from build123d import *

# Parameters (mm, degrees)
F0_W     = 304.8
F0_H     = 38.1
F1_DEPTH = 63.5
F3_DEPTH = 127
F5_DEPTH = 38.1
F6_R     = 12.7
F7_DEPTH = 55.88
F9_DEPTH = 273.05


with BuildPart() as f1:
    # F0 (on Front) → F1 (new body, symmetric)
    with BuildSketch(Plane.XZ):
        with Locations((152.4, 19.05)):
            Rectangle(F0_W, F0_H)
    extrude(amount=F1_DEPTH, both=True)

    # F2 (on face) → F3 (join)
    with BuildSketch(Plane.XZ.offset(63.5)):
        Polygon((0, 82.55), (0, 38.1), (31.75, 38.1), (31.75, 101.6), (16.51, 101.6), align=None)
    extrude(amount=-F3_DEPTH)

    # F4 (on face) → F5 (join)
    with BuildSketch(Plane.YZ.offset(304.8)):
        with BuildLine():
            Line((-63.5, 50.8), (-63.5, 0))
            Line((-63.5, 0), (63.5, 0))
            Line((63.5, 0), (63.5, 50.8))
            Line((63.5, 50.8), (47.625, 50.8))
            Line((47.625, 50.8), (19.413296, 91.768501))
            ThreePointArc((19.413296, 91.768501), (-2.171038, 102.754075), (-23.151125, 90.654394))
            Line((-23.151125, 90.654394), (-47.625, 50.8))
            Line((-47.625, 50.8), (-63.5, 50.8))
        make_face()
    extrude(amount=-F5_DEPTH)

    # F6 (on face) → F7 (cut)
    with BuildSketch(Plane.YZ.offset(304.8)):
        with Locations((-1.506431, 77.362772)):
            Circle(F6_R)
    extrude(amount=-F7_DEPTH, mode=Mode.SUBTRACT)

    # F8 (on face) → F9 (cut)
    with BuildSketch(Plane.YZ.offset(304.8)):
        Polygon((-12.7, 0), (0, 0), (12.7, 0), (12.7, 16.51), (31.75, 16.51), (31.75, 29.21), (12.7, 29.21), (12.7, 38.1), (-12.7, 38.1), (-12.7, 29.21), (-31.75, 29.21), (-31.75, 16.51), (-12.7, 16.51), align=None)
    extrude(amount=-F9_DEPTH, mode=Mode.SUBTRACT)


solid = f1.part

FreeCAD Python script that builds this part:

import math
import FreeCAD as App
import Part
import Sketcher
Q = App.Units.Quantity


def add_polygon(sketch, points):
    """Adds a closed chain of lines whose ends are joined by coincident constraints."""
    first, n = sketch.GeometryCount, len(points)
    for a, b in zip(points, points[1:] + points[:1]):
        sketch.addGeometry(Part.LineSegment(App.Vector(*a, 0), App.Vector(*b, 0)), False)
    for i in range(n):
        sketch.addConstraint(Sketcher.Constraint("Coincident", first + i, 2, first + (i + 1) % n, 1))

doc = App.newDocument("Part")
body = doc.addObject("PartDesign::Body", "Body")

sketch1 = body.newObject("Sketcher::SketchObject", "Sketch")
sketch1.AttachmentSupport = (doc.getObject("XZ_Plane"), [""])
sketch1.MapMode = "FlatFace"
add_polygon(sketch1, [(0, 38), (0, 0), (305, 0), (305, 38)])
sketch1.addConstraint([
    Sketcher.Constraint("Vertical", 0),
    Sketcher.Constraint("Horizontal", 1),
    Sketcher.Constraint("Vertical", 2),
    Sketcher.Constraint("Horizontal", 3),
    Sketcher.Constraint("Coincident", 0, 2, -1, 1),
    Sketcher.Constraint("DistanceX", 1, 1, 1, 2, Q("12 in")),
    Sketcher.Constraint("DistanceY", 0, 2, 0, 1, Q("1.5 in")),
])
pad1 = body.newObject("PartDesign::Pad", "Pad")
pad1.Profile = sketch1
pad1.Length = Q("5 in")
pad1.Midplane = True

sketch2 = body.newObject("Sketcher::SketchObject", "Sketch001")
sketch2.AttachmentSupport = (doc.getObject("XZ_Plane"), [""])
sketch2.MapMode = "FlatFace"
sketch2.AttachmentOffset = App.Placement(App.Vector(0, 0, 2.5 * 25.4), App.Rotation())
add_polygon(sketch2, [(0, 83), (0, 38), (32, 38), (32, 102), (17, 102)])
sketch2.addConstraint([
    Sketcher.Constraint("Vertical", 0),
    Sketcher.Constraint("Horizontal", 1),
    Sketcher.Constraint("Vertical", 2),
    Sketcher.Constraint("Horizontal", 3),
    Sketcher.Constraint("PointOnObject", 0, 2, -2),
    Sketcher.Constraint("DistanceX", 3, 2, 3, 1, Q("0.6 in")),
    Sketcher.Constraint("DistanceY", 2, 1, 2, 2, Q("2.5 in")),
    Sketcher.Constraint("DistanceY", -1, 1, 2, 2, Q("4 in")),
    Sketcher.Constraint("DistanceX", 1, 1, 1, 2, Q("1.25 in")),
    Sketcher.Constraint("DistanceY", 0, 2, 0, 1, Q("1.75 in")),
])
pad2 = body.newObject("PartDesign::Pad", "Pad001")
pad2.Profile = sketch2
pad2.Length = Q("5 in")
pad2.Reversed = True

sketch3 = body.newObject("Sketcher::SketchObject", "Sketch002")
sketch3.AttachmentSupport = (doc.getObject("YZ_Plane"), [""])
sketch3.MapMode = "FlatFace"
sketch3.AttachmentOffset = App.Placement(App.Vector(0, 0, 12 * 25.4), App.Rotation())
sketch3.addGeometry([
    Part.LineSegment(App.Vector(-64, 51, 0), App.Vector(-64, 0, 0)),
    Part.LineSegment(App.Vector(-64, 0, 0), App.Vector(64, 0, 0)),
    Part.LineSegment(App.Vector(64, 0, 0), App.Vector(64, 51, 0)),
    Part.LineSegment(App.Vector(64, 51, 0), App.Vector(48, 51, 0)),
    Part.LineSegment(App.Vector(48, 51, 0), App.Vector(19, 92, 0)),
    Part.ArcOfCircle(Part.Circle(App.Vector(-2, 77, 0), App.Vector(0, 0, 1), 25), math.radians(35), math.radians(148)),
    Part.LineSegment(App.Vector(-23, 91, 0), App.Vector(-48, 51, 0)),
    Part.LineSegment(App.Vector(-48, 51, 0), App.Vector(-64, 51, 0)),
], False)
sketch3.addConstraint([
    Sketcher.Constraint("Coincident", 0, 2, 1, 1),
    Sketcher.Constraint("Coincident", 1, 2, 2, 1),
    Sketcher.Constraint("Coincident", 2, 2, 3, 1),
    Sketcher.Constraint("Coincident", 3, 2, 4, 1),
    Sketcher.Constraint("Tangent", 4, 2, 5, 1),
    Sketcher.Constraint("Tangent", 5, 2, 6, 1),
    Sketcher.Constraint("Coincident", 6, 2, 7, 1),
    Sketcher.Constraint("Coincident", 7, 2, 0, 1),
    Sketcher.Constraint("Vertical", 0),
    Sketcher.Constraint("Horizontal", 1),
    Sketcher.Constraint("Vertical", 2),
    Sketcher.Constraint("Horizontal", 3),
    Sketcher.Constraint("Horizontal", 7),
    Sketcher.Constraint("Symmetric", 0, 2, 1, 2, -1, 1),
    Sketcher.Constraint("Symmetric", 3, 2, 6, 2, -2),
    Sketcher.Constraint("Radius", 5, Q("1 in")),
    Sketcher.Constraint("DistanceX", 1, 1, 1, 2, Q("5 in")),
    Sketcher.Constraint("DistanceY", 0, 2, 0, 1, Q("2 in")),
    Sketcher.Constraint("DistanceX", 3, 2, 3, 1, Q("0.625 in")),
    Sketcher.Constraint("DistanceY", -1, 1, 4, 2, 91.768501),
    Sketcher.Constraint("Distance", 4, 49.74252),
])
pad3 = body.newObject("PartDesign::Pad", "Pad002")
pad3.Profile = sketch3
pad3.Length = Q("1.5 in")
pad3.Reversed = True

sketch4 = body.newObject("Sketcher::SketchObject", "Sketch003")
sketch4.AttachmentSupport = (doc.getObject("YZ_Plane"), [""])
sketch4.MapMode = "FlatFace"
sketch4.AttachmentOffset = App.Placement(App.Vector(0, 0, 12 * 25.4), App.Rotation())
sketch4.addGeometry(Part.Circle(App.Vector(-2, 77, 0), App.Vector(0, 0, 1), 13), False)
sketch4.addConstraint([
    Sketcher.Constraint("Diameter", 0, Q("1 in")),
    Sketcher.Constraint("DistanceX", 0, 3, -1, 1, 1.506431),
    Sketcher.Constraint("DistanceY", -1, 1, 0, 3, 77.362772),
])
pocket1 = body.newObject("PartDesign::Pocket", "Pocket")
pocket1.Profile = sketch4
pocket1.Length = Q("2.2 in")

sketch5 = body.newObject("Sketcher::SketchObject", "Sketch004")
sketch5.AttachmentSupport = (doc.getObject("YZ_Plane"), [""])
sketch5.MapMode = "FlatFace"
sketch5.AttachmentOffset = App.Placement(App.Vector(0, 0, 12 * 25.4), App.Rotation())
add_polygon(sketch5, [(-13, 0), (13, 0), (13, 17), (32, 17), (32, 29), (13, 29), (13, 38), (-13, 38), (-13, 29), (-32, 29), (-32, 17), (-13, 17)])
sketch5.addConstraint([
    Sketcher.Constraint("Horizontal", 0),
    Sketcher.Constraint("Vertical", 1),
    Sketcher.Constraint("Horizontal", 2),
    Sketcher.Constraint("Vertical", 3),
    Sketcher.Constraint("Horizontal", 4),
    Sketcher.Constraint("Vertical", 5),
    Sketcher.Constraint("Horizontal", 6),
    Sketcher.Constraint("Vertical", 7),
    Sketcher.Constraint("Horizontal", 8),
    Sketcher.Constraint("Vertical", 9),
    Sketcher.Constraint("Horizontal", 10),
    Sketcher.Constraint("Vertical", 11),
    Sketcher.Constraint("Symmetric", 0, 2, 11, 2, -1, 1),
    Sketcher.Constraint("Symmetric", 4, 2, 7, 2, -2),
    Sketcher.Constraint("Symmetric", 2, 2, 9, 2, -2),
    Sketcher.Constraint("Vertical", 1, 2, 4, 2),
    Sketcher.Constraint("DistanceX", 0, 1, 0, 2, Q("1 in")),
    Sketcher.Constraint("DistanceY", 3, 1, 3, 2, Q("0.5 in")),
    Sketcher.Constraint("DistanceX", 2, 1, 2, 2, Q("0.75 in")),
    Sketcher.Constraint("DistanceY", 1, 1, 1, 2, Q("0.65 in")),
    Sketcher.Constraint("DistanceY", 5, 1, 5, 2, Q("0.35 in")),
])
pocket2 = body.newObject("PartDesign::Pocket", "Pocket001")
pocket2.Profile = sketch5
pocket2.Length = Q("10.75 in")

doc.recompute()
